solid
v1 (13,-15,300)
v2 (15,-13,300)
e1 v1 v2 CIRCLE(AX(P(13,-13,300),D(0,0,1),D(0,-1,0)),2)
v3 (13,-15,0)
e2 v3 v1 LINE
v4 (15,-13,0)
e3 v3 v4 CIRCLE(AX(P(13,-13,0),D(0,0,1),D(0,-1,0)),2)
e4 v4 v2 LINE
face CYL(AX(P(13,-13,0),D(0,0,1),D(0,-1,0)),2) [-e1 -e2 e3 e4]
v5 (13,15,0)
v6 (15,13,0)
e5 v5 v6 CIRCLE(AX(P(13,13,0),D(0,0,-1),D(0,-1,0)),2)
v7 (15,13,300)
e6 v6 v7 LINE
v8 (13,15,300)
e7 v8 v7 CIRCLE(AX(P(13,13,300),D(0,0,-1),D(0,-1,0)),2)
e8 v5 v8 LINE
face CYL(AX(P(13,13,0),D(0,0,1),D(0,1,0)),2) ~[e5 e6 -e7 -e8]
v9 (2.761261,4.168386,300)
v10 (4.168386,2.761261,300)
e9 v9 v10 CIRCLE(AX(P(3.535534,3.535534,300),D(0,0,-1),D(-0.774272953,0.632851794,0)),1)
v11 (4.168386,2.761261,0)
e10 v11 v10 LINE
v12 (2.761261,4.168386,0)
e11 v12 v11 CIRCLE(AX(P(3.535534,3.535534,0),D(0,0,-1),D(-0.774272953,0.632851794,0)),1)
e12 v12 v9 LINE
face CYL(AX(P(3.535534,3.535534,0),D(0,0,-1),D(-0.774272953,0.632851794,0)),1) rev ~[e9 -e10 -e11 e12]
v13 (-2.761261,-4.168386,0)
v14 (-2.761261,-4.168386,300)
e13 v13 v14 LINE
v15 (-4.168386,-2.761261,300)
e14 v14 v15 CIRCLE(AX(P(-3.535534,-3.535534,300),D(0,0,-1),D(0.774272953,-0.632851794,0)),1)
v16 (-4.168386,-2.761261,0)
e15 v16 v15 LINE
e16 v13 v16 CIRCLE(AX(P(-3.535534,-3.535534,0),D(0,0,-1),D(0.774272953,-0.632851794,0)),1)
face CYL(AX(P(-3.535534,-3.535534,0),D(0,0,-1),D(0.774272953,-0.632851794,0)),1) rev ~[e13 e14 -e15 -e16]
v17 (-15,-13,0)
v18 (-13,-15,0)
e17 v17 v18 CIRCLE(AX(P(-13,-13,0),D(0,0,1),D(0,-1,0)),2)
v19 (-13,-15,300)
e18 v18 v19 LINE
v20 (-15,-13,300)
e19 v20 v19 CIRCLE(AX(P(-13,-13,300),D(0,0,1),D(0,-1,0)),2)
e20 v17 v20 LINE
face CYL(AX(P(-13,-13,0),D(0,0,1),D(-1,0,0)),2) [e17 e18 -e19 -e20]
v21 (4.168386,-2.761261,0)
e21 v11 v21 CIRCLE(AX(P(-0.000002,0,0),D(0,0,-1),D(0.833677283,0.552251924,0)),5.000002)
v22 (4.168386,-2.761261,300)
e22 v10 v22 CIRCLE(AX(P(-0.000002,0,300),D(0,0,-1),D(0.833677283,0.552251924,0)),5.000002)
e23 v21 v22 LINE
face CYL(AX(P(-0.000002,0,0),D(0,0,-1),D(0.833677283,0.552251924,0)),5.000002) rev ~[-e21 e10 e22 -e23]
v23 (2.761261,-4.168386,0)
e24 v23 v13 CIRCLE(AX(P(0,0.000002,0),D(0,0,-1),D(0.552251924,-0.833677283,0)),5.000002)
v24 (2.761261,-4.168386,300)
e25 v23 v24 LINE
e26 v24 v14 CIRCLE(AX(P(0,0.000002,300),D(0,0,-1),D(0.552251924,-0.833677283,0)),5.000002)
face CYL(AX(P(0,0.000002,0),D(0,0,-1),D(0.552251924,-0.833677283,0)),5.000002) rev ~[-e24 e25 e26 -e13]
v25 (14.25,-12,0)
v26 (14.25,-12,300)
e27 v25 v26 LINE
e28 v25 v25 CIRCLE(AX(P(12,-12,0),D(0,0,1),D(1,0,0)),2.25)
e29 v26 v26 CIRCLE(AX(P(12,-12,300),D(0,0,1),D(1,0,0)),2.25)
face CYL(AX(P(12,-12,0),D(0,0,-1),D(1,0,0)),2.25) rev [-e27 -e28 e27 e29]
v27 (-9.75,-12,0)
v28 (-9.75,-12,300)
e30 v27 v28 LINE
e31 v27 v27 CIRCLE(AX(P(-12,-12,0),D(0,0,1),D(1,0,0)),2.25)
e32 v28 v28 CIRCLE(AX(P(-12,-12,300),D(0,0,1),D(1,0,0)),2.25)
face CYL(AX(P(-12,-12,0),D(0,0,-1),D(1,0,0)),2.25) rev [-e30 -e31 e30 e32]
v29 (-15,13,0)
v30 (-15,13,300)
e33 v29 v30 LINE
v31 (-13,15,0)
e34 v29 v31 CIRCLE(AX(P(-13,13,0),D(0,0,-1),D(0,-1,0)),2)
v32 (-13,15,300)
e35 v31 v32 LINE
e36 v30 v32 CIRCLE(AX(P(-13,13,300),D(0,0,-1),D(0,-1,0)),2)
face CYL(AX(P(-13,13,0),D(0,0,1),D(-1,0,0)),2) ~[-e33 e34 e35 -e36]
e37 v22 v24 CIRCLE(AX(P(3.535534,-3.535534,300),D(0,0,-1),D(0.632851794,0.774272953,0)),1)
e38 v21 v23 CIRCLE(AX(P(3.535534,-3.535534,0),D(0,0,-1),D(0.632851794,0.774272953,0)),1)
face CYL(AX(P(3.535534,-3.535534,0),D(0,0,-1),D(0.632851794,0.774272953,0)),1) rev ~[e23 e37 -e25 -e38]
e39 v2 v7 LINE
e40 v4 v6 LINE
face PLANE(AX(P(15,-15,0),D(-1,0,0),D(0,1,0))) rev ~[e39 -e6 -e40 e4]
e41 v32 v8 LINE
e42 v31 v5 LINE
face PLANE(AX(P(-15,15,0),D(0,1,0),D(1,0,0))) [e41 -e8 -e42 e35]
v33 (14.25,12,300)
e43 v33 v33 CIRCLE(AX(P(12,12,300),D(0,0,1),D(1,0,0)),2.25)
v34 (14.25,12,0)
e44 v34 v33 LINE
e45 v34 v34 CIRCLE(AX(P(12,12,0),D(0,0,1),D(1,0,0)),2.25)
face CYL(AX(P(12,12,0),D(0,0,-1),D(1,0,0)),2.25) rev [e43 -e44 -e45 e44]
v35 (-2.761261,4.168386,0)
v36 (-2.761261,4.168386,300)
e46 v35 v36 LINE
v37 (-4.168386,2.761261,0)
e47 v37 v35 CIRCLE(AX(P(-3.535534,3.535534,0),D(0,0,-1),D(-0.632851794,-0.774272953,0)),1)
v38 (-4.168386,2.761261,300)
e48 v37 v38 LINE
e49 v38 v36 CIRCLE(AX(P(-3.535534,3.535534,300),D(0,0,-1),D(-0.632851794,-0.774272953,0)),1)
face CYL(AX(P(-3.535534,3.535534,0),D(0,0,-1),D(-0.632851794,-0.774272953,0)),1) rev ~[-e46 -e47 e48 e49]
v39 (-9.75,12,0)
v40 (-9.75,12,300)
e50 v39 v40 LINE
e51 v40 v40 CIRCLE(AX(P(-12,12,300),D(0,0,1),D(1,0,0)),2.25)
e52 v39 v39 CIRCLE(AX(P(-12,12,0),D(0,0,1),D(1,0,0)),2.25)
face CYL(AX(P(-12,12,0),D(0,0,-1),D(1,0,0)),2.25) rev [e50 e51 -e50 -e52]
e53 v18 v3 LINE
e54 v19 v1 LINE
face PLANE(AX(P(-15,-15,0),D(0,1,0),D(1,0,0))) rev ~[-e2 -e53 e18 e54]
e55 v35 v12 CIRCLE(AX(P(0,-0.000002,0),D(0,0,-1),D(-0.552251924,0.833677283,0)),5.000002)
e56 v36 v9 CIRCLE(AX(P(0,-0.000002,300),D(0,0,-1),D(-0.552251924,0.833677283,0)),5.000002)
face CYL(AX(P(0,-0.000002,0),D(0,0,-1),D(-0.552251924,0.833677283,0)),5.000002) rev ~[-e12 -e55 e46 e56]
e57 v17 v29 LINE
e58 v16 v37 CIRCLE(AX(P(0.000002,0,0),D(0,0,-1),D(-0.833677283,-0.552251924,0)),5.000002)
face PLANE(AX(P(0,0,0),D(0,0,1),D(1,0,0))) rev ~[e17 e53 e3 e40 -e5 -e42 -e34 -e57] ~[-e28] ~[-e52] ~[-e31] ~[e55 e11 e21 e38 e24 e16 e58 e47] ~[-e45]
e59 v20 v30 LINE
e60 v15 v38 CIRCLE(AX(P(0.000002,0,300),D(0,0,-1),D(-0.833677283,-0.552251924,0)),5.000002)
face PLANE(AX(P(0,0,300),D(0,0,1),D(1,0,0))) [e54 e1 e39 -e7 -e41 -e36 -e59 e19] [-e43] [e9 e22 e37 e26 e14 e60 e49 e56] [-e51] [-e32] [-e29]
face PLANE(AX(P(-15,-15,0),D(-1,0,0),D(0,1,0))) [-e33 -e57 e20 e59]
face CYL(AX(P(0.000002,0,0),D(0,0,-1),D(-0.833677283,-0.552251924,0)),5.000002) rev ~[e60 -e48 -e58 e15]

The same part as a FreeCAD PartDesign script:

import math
import FreeCAD as App
import Part
import Sketcher

V = App.Vector


def edges_at(feature, points):
    """Names of the edges that pass closest to the given points."""
    edges = feature.Shape.Edges
    near = lambda p: min(range(len(edges)), key=lambda i: edges[i].distToShape(Part.Vertex(*p))[0])
    return sorted({f"Edge{near(p) + 1}" for p in points})

doc = App.newDocument("Part")
body = doc.addObject("PartDesign::Body", "Body")

sketch1 = doc.addObject("Sketcher::SketchObject", "Sketch")
body.addObject(sketch1)
sketch1.AttachmentSupport = (doc.XY_Plane, [""])
sketch1.MapMode = "FlatFace"
sketch1.addGeometry([
    Part.LineSegment(V(-15, 15, 0), V(-15, -15, 0)),
    Part.LineSegment(V(-15, -15, 0), V(15, -15, 0)),
    Part.LineSegment(V(15, -15, 0), V(15, 15, 0)),
    Part.LineSegment(V(15, 15, 0), V(-15, 15, 0)),
    Part.Circle(V(-12, -12, 0), V(0, 0, 1), 2.2),
    Part.Circle(V(12, -12, 0), V(0, 0, 1), 2.2),
    Part.Circle(V(-12, 12, 0), V(0, 0, 1), 2.2),
    Part.ArcOfCircle(Part.Circle(V(3.5, 3.5, 0), V(0, 0, 1), 1), math.radians(-51), math.radians(141)),
    Part.ArcOfCircle(Part.Circle(V(0, 0, 0), V(0, 0, 1), 5), math.radians(-34), math.radians(34)),
    Part.ArcOfCircle(Part.Circle(V(3.5, -3.5, 0), V(0, 0, 1), 1), math.radians(-141), math.radians(51)),
    Part.ArcOfCircle(Part.Circle(V(0, 0, 0), V(0, 0, 1), 5), math.radians(-124), math.radians(-56)),
    Part.ArcOfCircle(Part.Circle(V(-3.5, -3.5, 0), V(0, 0, 1), 1), math.radians(129), math.radians(321)),
    Part.ArcOfCircle(Part.Circle(V(0, 0, 0), V(0, 0, 1), 5), math.radians(146), math.radians(214)),
    Part.ArcOfCircle(Part.Circle(V(-3.5, 3.5, 0), V(0, 0, 1), 1), math.radians(39), math.radians(231)),
    Part.ArcOfCircle(Part.Circle(V(0, 0, 0), V(0, 0, 1), 5), math.radians(56), math.radians(124)),
    Part.Circle(V(12, 12, 0), V(0, 0, 1), 2.2),
], False)
sketch1.addConstraint([
    Sketcher.Constraint("Coincident", 0, 2, 1, 1),
    Sketcher.Constraint("Coincident", 1, 2, 2, 1),
    Sketcher.Constraint("Coincident", 2, 2, 3, 1),
    Sketcher.Constraint("Coincident", 3, 2, 0, 1),
    Sketcher.Constraint("Coincident", 7, 1, 8, 2),
    Sketcher.Constraint("Coincident", 8, 1, 9, 2),
    Sketcher.Constraint("Coincident", 9, 1, 10, 2),
    Sketcher.Constraint("Coincident", 10, 1, 11, 2),
    Sketcher.Constraint("Coincident", 11, 1, 12, 2),
    Sketcher.Constraint("Coincident", 12, 1, 13, 2),
    Sketcher.Constraint("Coincident", 13, 1, 14, 2),
    Sketcher.Constraint("Coincident", 14, 1, 7, 2),
    Sketcher.Constraint("Vertical", 0),
    Sketcher.Constraint("Horizontal", 1),
    Sketcher.Constraint("Vertical", 2),
    Sketcher.Constraint("Horizontal", 3),
    Sketcher.Constraint("Coincident", 8, 3, -1, 1),
    Sketcher.Constraint("Coincident", 10, 3, -1, 1),
    Sketcher.Constraint("Coincident", 12, 3, -1, 1),
    Sketcher.Constraint("Coincident", 14, 3, -1, 1),
    Sketcher.Constraint("Equal", 4, 5),
    Sketcher.Constraint("Equal", 5, 6),
    Sketcher.Constraint("Equal", 7, 9),
    Sketcher.Constraint("Equal", 8, 10),
    Sketcher.Constraint("Equal", 9, 11),
    Sketcher.Constraint("Equal", 10, 12),
    Sketcher.Constraint("Equal", 11, 13),
    Sketcher.Constraint("Equal", 12, 14),
    Sketcher.Constraint("Equal", 6, 15),
    Sketcher.Constraint("Symmetric", 5, 3, 6, 3, -1, 1),
    Sketcher.Constraint("Symmetric", 7, 3, 11, 3, -1, 1),
    Sketcher.Constraint("Symmetric", 9, 3, 13, 3, -1, 1),
    Sketcher.Constraint("Symmetric", 4, 3, 15, 3, -1, 1),
    Sketcher.Constraint("Symmetric", 0, 2, 2, 2, -1, 1),
    Sketcher.Constraint("Symmetric", 4, 3, 5, 3, -2),
    Sketcher.Constraint("Symmetric", 9, 3, 11, 3, -2),
    Sketcher.Constraint("Equal", 3, 0),
    Sketcher.Constraint("Radius", 7, 1.0),
    Sketcher.Constraint("Diameter", 4, 4.5),
    Sketcher.Constraint("DistanceX", 1, 1, 1, 2, 30.0),
    Sketcher.Constraint("DistanceX", 4, 3, -1, 1, 12.0),
    Sketcher.Constraint("DistanceY", 4, 3, -1, 1, 12.0),
    Sketcher.Constraint("Radius", 8, 5.000002),
    Sketcher.Constraint("DistanceY", -1, 1, 7, 1, 2.761261),
    Sketcher.Constraint("DistanceX", -1, 1, 9, 1, 2.761261),
])
pad1 = doc.addObject("PartDesign::Pad", "Pad")
body.addObject(pad1)
pad1.Profile = sketch1
pad1.Length = 300
doc.recompute()

fillet = doc.addObject("PartDesign::Fillet", "Fillet")
body.addObject(fillet)
fillet.Base = (pad1, edges_at(pad1, [
    (15, 15, 150),
    (-15, 15, 150),
    (-15, -15, 150),
    (15, -15, 150),
]))
fillet.Radius = 2

doc.recompute()
